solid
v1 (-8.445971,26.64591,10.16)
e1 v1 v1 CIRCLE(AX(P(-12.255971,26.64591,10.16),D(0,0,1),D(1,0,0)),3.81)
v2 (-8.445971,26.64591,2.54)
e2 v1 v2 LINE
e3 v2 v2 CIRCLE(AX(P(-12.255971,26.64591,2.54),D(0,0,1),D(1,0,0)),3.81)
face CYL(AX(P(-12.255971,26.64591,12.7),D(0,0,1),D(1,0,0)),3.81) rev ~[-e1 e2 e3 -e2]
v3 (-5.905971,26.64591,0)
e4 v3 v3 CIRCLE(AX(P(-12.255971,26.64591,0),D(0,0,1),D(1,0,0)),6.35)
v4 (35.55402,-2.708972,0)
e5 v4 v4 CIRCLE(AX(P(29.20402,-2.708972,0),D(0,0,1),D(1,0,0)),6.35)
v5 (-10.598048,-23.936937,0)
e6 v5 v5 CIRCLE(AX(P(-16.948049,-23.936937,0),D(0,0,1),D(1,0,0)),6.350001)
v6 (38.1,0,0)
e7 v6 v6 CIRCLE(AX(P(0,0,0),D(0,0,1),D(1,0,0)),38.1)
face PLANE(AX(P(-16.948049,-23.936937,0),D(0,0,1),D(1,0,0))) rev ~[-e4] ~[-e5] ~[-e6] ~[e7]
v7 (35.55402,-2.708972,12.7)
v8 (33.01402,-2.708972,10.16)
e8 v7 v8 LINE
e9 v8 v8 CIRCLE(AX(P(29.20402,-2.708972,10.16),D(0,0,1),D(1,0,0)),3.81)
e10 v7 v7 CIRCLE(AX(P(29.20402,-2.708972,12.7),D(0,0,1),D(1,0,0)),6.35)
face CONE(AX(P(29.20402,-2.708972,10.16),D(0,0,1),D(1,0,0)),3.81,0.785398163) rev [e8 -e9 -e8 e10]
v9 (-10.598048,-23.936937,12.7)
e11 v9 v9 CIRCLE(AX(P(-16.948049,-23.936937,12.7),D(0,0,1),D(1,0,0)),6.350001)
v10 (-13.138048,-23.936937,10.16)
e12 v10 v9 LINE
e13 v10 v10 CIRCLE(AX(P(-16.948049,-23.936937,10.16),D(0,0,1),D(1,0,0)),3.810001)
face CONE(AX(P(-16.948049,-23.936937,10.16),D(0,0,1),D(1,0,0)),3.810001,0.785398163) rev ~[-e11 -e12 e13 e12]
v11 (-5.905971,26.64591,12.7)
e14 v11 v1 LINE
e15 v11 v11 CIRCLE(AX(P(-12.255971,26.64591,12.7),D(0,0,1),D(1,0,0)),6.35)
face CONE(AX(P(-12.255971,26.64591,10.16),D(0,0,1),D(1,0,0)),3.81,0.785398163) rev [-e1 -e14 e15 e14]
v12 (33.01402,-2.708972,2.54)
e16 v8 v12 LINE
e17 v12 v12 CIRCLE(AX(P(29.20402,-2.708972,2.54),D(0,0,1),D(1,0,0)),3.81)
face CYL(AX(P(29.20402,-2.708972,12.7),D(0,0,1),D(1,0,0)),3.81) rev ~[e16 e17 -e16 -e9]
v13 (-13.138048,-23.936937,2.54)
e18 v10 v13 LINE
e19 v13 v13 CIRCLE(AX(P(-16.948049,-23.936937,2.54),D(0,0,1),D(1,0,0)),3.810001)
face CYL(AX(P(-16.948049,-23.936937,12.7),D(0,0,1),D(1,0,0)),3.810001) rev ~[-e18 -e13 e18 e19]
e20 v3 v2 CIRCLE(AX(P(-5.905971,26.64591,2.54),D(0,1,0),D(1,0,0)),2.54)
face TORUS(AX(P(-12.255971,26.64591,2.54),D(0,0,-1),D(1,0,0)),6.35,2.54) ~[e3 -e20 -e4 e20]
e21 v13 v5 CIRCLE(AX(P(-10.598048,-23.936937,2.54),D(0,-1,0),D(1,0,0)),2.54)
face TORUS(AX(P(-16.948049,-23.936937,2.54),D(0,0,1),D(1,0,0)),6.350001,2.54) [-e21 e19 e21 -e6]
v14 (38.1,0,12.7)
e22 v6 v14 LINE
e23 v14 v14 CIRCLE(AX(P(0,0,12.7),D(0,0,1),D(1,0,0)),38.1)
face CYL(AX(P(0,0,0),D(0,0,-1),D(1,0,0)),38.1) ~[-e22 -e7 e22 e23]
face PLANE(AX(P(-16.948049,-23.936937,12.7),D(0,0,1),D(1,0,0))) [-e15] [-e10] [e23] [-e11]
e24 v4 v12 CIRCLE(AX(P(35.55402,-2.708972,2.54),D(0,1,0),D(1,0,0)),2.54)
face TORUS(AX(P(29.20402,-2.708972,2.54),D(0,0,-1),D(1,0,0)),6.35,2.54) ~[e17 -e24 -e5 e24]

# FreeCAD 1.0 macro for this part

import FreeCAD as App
import Part
import Sketcher

V = App.Vector
Q = App.Units.Quantity


def edges_at(feature, points):
    """Names of the edges that pass closest to the given points."""
    edges = feature.Shape.Edges
    near = lambda p: min(range(len(edges)), key=lambda i: edges[i].distToShape(Part.Vertex(*p))[0])
    return sorted({f"Edge{near(p) + 1}" for p in points})

doc = App.newDocument("Part")
body = doc.addObject("PartDesign::Body", "Body")

# Sketch on XY plane
sketch1 = doc.addObject("Sketcher::SketchObject", "Sketch")
body.addObject(sketch1)
sketch1.AttachmentSupport = (doc.XY_Plane, [""])
sketch1.MapMode = "FlatFace"
sketch1.addGeometry([
    Part.Circle(V(0, 0, 0), V(0, 0, 1), 38.1),
    Part.Circle(V(-16.948049, -23.936937, 0), V(0, 0, 1), 6.35),
    Part.Circle(V(29.20402, -2.708972, 0), V(0, 0, 1), 6.35),
    Part.Circle(V(-12.255971, 26.64591, 0), V(0, 0, 1), 6.35),
], False)
sketch1.addConstraint([
    Sketcher.Constraint("Coincident", 0, 3, -1, 1),
    Sketcher.Constraint("Equal", 1, 2),
    Sketcher.Constraint("Equal", 2, 3),
    Sketcher.Constraint("Diameter", 0, Q("3 in")),
    Sketcher.Constraint("Diameter", 1, Q("0.5 in")),
    Sketcher.Constraint("DistanceX", 1, 3, -1, 1, Q("16.948049 mm")),
    Sketcher.Constraint("DistanceX", -1, 1, 2, 3, Q("29.20402 mm")),
    Sketcher.Constraint("DistanceX", 3, 3, -1, 1, Q("12.255971 mm")),
    Sketcher.Constraint("DistanceY", -1, 1, 3, 3, Q("26.64591 mm")),
    Sketcher.Constraint("DistanceY", 2, 3, 3, 3, Q("29.354882 mm")),
    Sketcher.Constraint("DistanceY", 1, 3, -1, 1, Q("23.936937 mm")),
])
pad1 = doc.addObject("PartDesign::Pad", "Pad")
body.addObject(pad1)
pad1.Profile = sketch1
pad1.Length = Q("0.5 in")

# Sketch on XY plane
sketch2 = doc.addObject("Sketcher::SketchObject", "Sketch001")
body.addObject(sketch2)
sketch2.AttachmentSupport = (doc.XY_Plane, [""])
sketch2.MapMode = "FlatFace"
sketch2.AttachmentOffset = App.Placement(V(0, 0, 0.5 * 25.4), App.Rotation())
sketch2.addGeometry([
    Part.Circle(V(-16.948049, -23.936937, 0), V(0, 0, 1), 6.35),  # 0
    Part.Circle(V(-16.948049, -23.936937, 0), V(0, 0, 1), 3.810001),  # 1
    Part.Circle(V(-12.255971, 26.64591, 0), V(0, 0, 1), 6.35),  # 2
    Part.Circle(V(-12.255971, 26.64591, 0), V(0, 0, 1), 3.81),  # 3
    Part.Circle(V(29.20402, -2.708972, 0), V(0, 0, 1), 6.35),  # 4
    Part.Circle(V(29.20402, -2.708972, 0), V(0, 0, 1), 3.81),  # 5
], False)
sketch2.addConstraint([
    Sketcher.Constraint("Coincident", 1, 3, 0, 3),
    Sketcher.Constraint("Coincident", 3, 3, 2, 3),
    Sketcher.Constraint("Coincident", 5, 3, 4, 3),
    Sketcher.Constraint("Equal", 0, 2),
    Sketcher.Constraint("Equal", 1, 3),
    Sketcher.Constraint("Equal", 2, 4),
    Sketcher.Constraint("Equal", 3, 5),
    Sketcher.Constraint("Diameter", 0, Q("0.5 in")),
    Sketcher.Constraint("Diameter", 1, Q("0.3000001 in")),
    Sketcher.Constraint("DistanceX", 0, 3, -1, 1, Q("16.948049 mm")),
    Sketcher.Constraint("DistanceX", 2, 3, -1, 1, Q("12.255971 mm")),
    Sketcher.Constraint("DistanceY", -1, 1, 2, 3, Q("26.64591 mm")),
    Sketcher.Constraint("DistanceX", -1, 1, 4, 3, Q("29.20402 mm")),
    Sketcher.Constraint("DistanceY", 4, 3, 2, 3, Q("29.354882 mm")),
    Sketcher.Constraint("DistanceY", 0, 3, -1, 1, Q("23.936937 mm")),
])
pad2 = doc.addObject("PartDesign::Pad", "Pad001")
body.addObject(pad2)
pad2.Profile = sketch2
pad2.Length = Q("0.5 in")
pad2.Reversed = True
doc.recompute()

fillet = doc.addObject("PartDesign::Fillet", "Fillet")
body.addObject(fillet)
fillet.Base = (pad2, edges_at(pad2, [(25.394, -2.709, 0), (-16.066, 26.646, 0), (-20.758, -23.937, 0)]))
fillet.Radius = Q("0.1 in")
doc.recompute()

chamfer = doc.addObject("PartDesign::Chamfer", "Chamfer")
body.addObject(chamfer)
chamfer.Base = (fillet, edges_at(fillet, [(-16.066, 26.646, 12.7), (25.394, -2.709, 12.7), (-20.758, -23.937, 12.7)]))
chamfer.Size = Q("0.1 in")

doc.recompute()
